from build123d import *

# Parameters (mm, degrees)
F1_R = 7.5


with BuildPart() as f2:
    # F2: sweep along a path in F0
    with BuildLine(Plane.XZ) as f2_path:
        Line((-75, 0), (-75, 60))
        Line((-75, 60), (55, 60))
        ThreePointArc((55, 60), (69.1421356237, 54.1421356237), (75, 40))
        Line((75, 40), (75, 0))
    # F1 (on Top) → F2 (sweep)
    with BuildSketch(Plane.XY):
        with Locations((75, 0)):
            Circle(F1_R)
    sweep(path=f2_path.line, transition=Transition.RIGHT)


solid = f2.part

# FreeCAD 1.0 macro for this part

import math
import FreeCAD as App
import Part
import Sketcher

V = App.Vector

doc = App.newDocument("Part")
params = doc.addObject("Spreadsheet::Sheet", "Params")
for row, (alias, value) in enumerate([
    ("sketch1_diameter", "15 mm"),
    ("sketch2_radius", "20 mm"),
    ("sketch2_width", "130 mm"),
    ("sketch2_height", "60 mm"),
], start=1):
    params.set(f"A{row}", alias)
    params.set(f"B{row}", "=" + value)
    params.setAlias(f"B{row}", alias)

body = doc.addObject("PartDesign::Body", "Body")

sketch1 = body.newObject("Sketcher::SketchObject", "Sketch")
sketch1.AttachmentSupport = (doc.getObject("XY_Plane"), [""])
sketch1.MapMode = "FlatFace"
sketch1.addGeometry(Part.Circle(V(75, 0, 0), V(0, 0, 1), 8), False)
sketch1.addConstraint([
    Sketcher.Constraint("PointOnObject", 0, 3, -1),
    Sketcher.Constraint("Diameter", 0, 15.0),
    Sketcher.Constraint("DistanceX", -1, 1, 0, 3, 75.0),
])
sketch1.setExpression("Constraints[1]", "Params.sketch1_diameter")

sketch2 = body.newObject("Sketcher::SketchObject", "Sketch001")
sketch2.AttachmentSupport = (doc.getObject("XZ_Plane"), [""])
sketch2.MapMode = "FlatFace"
sketch2.addGeometry([
    Part.LineSegment(V(-75, 0, 0), V(-75, 60, 0)),
    Part.LineSegment(V(-75, 60, 0), V(55, 60, 0)),
    Part.ArcOfCircle(Part.Circle(V(55, 40, 0), V(0, 0, 1), 20), math.radians(0), math.radians(90)),
    Part.LineSegment(V(75, 40, 0), V(75, 0, 0)),
], False)
sketch2.addConstraint([
    Sketcher.Constraint("Coincident", 0, 2, 1, 1),
    Sketcher.Constraint("Tangent", 1, 2, 2, 2),
    Sketcher.Constraint("Tangent", 2, 1, 3, 1),
    Sketcher.Constraint("Vertical", 0),
    Sketcher.Constraint("Horizontal", 1),
    Sketcher.Constraint("Vertical", 3),
    Sketcher.Constraint("Symmetric", 0, 1, 3, 2, -1, 1),
    Sketcher.Constraint("PointOnObject", 0, 1, -1),
    Sketcher.Constraint("Radius", 2, 20.0),
    Sketcher.Constraint("DistanceX", 1, 1, 1, 2, 130.0),
    Sketcher.Constraint("DistanceY", 0, 1, 0, 2, 60.0),
])
sketch2.setExpression("Constraints[8]", "Params.sketch2_radius")
sketch2.setExpression("Constraints[9]", "Params.sketch2_width")
sketch2.setExpression("Constraints[10]", "Params.sketch2_height")
doc.recompute()

additivepipe = body.newObject("PartDesign::AdditivePipe", "AdditivePipe")
additivepipe.Profile = sketch1
additivepipe.Spine = (sketch2, ["Edge1", "Edge2", "Edge3", "Edge4"])
additivepipe.Transition = "Right corner"

doc.recompute()
